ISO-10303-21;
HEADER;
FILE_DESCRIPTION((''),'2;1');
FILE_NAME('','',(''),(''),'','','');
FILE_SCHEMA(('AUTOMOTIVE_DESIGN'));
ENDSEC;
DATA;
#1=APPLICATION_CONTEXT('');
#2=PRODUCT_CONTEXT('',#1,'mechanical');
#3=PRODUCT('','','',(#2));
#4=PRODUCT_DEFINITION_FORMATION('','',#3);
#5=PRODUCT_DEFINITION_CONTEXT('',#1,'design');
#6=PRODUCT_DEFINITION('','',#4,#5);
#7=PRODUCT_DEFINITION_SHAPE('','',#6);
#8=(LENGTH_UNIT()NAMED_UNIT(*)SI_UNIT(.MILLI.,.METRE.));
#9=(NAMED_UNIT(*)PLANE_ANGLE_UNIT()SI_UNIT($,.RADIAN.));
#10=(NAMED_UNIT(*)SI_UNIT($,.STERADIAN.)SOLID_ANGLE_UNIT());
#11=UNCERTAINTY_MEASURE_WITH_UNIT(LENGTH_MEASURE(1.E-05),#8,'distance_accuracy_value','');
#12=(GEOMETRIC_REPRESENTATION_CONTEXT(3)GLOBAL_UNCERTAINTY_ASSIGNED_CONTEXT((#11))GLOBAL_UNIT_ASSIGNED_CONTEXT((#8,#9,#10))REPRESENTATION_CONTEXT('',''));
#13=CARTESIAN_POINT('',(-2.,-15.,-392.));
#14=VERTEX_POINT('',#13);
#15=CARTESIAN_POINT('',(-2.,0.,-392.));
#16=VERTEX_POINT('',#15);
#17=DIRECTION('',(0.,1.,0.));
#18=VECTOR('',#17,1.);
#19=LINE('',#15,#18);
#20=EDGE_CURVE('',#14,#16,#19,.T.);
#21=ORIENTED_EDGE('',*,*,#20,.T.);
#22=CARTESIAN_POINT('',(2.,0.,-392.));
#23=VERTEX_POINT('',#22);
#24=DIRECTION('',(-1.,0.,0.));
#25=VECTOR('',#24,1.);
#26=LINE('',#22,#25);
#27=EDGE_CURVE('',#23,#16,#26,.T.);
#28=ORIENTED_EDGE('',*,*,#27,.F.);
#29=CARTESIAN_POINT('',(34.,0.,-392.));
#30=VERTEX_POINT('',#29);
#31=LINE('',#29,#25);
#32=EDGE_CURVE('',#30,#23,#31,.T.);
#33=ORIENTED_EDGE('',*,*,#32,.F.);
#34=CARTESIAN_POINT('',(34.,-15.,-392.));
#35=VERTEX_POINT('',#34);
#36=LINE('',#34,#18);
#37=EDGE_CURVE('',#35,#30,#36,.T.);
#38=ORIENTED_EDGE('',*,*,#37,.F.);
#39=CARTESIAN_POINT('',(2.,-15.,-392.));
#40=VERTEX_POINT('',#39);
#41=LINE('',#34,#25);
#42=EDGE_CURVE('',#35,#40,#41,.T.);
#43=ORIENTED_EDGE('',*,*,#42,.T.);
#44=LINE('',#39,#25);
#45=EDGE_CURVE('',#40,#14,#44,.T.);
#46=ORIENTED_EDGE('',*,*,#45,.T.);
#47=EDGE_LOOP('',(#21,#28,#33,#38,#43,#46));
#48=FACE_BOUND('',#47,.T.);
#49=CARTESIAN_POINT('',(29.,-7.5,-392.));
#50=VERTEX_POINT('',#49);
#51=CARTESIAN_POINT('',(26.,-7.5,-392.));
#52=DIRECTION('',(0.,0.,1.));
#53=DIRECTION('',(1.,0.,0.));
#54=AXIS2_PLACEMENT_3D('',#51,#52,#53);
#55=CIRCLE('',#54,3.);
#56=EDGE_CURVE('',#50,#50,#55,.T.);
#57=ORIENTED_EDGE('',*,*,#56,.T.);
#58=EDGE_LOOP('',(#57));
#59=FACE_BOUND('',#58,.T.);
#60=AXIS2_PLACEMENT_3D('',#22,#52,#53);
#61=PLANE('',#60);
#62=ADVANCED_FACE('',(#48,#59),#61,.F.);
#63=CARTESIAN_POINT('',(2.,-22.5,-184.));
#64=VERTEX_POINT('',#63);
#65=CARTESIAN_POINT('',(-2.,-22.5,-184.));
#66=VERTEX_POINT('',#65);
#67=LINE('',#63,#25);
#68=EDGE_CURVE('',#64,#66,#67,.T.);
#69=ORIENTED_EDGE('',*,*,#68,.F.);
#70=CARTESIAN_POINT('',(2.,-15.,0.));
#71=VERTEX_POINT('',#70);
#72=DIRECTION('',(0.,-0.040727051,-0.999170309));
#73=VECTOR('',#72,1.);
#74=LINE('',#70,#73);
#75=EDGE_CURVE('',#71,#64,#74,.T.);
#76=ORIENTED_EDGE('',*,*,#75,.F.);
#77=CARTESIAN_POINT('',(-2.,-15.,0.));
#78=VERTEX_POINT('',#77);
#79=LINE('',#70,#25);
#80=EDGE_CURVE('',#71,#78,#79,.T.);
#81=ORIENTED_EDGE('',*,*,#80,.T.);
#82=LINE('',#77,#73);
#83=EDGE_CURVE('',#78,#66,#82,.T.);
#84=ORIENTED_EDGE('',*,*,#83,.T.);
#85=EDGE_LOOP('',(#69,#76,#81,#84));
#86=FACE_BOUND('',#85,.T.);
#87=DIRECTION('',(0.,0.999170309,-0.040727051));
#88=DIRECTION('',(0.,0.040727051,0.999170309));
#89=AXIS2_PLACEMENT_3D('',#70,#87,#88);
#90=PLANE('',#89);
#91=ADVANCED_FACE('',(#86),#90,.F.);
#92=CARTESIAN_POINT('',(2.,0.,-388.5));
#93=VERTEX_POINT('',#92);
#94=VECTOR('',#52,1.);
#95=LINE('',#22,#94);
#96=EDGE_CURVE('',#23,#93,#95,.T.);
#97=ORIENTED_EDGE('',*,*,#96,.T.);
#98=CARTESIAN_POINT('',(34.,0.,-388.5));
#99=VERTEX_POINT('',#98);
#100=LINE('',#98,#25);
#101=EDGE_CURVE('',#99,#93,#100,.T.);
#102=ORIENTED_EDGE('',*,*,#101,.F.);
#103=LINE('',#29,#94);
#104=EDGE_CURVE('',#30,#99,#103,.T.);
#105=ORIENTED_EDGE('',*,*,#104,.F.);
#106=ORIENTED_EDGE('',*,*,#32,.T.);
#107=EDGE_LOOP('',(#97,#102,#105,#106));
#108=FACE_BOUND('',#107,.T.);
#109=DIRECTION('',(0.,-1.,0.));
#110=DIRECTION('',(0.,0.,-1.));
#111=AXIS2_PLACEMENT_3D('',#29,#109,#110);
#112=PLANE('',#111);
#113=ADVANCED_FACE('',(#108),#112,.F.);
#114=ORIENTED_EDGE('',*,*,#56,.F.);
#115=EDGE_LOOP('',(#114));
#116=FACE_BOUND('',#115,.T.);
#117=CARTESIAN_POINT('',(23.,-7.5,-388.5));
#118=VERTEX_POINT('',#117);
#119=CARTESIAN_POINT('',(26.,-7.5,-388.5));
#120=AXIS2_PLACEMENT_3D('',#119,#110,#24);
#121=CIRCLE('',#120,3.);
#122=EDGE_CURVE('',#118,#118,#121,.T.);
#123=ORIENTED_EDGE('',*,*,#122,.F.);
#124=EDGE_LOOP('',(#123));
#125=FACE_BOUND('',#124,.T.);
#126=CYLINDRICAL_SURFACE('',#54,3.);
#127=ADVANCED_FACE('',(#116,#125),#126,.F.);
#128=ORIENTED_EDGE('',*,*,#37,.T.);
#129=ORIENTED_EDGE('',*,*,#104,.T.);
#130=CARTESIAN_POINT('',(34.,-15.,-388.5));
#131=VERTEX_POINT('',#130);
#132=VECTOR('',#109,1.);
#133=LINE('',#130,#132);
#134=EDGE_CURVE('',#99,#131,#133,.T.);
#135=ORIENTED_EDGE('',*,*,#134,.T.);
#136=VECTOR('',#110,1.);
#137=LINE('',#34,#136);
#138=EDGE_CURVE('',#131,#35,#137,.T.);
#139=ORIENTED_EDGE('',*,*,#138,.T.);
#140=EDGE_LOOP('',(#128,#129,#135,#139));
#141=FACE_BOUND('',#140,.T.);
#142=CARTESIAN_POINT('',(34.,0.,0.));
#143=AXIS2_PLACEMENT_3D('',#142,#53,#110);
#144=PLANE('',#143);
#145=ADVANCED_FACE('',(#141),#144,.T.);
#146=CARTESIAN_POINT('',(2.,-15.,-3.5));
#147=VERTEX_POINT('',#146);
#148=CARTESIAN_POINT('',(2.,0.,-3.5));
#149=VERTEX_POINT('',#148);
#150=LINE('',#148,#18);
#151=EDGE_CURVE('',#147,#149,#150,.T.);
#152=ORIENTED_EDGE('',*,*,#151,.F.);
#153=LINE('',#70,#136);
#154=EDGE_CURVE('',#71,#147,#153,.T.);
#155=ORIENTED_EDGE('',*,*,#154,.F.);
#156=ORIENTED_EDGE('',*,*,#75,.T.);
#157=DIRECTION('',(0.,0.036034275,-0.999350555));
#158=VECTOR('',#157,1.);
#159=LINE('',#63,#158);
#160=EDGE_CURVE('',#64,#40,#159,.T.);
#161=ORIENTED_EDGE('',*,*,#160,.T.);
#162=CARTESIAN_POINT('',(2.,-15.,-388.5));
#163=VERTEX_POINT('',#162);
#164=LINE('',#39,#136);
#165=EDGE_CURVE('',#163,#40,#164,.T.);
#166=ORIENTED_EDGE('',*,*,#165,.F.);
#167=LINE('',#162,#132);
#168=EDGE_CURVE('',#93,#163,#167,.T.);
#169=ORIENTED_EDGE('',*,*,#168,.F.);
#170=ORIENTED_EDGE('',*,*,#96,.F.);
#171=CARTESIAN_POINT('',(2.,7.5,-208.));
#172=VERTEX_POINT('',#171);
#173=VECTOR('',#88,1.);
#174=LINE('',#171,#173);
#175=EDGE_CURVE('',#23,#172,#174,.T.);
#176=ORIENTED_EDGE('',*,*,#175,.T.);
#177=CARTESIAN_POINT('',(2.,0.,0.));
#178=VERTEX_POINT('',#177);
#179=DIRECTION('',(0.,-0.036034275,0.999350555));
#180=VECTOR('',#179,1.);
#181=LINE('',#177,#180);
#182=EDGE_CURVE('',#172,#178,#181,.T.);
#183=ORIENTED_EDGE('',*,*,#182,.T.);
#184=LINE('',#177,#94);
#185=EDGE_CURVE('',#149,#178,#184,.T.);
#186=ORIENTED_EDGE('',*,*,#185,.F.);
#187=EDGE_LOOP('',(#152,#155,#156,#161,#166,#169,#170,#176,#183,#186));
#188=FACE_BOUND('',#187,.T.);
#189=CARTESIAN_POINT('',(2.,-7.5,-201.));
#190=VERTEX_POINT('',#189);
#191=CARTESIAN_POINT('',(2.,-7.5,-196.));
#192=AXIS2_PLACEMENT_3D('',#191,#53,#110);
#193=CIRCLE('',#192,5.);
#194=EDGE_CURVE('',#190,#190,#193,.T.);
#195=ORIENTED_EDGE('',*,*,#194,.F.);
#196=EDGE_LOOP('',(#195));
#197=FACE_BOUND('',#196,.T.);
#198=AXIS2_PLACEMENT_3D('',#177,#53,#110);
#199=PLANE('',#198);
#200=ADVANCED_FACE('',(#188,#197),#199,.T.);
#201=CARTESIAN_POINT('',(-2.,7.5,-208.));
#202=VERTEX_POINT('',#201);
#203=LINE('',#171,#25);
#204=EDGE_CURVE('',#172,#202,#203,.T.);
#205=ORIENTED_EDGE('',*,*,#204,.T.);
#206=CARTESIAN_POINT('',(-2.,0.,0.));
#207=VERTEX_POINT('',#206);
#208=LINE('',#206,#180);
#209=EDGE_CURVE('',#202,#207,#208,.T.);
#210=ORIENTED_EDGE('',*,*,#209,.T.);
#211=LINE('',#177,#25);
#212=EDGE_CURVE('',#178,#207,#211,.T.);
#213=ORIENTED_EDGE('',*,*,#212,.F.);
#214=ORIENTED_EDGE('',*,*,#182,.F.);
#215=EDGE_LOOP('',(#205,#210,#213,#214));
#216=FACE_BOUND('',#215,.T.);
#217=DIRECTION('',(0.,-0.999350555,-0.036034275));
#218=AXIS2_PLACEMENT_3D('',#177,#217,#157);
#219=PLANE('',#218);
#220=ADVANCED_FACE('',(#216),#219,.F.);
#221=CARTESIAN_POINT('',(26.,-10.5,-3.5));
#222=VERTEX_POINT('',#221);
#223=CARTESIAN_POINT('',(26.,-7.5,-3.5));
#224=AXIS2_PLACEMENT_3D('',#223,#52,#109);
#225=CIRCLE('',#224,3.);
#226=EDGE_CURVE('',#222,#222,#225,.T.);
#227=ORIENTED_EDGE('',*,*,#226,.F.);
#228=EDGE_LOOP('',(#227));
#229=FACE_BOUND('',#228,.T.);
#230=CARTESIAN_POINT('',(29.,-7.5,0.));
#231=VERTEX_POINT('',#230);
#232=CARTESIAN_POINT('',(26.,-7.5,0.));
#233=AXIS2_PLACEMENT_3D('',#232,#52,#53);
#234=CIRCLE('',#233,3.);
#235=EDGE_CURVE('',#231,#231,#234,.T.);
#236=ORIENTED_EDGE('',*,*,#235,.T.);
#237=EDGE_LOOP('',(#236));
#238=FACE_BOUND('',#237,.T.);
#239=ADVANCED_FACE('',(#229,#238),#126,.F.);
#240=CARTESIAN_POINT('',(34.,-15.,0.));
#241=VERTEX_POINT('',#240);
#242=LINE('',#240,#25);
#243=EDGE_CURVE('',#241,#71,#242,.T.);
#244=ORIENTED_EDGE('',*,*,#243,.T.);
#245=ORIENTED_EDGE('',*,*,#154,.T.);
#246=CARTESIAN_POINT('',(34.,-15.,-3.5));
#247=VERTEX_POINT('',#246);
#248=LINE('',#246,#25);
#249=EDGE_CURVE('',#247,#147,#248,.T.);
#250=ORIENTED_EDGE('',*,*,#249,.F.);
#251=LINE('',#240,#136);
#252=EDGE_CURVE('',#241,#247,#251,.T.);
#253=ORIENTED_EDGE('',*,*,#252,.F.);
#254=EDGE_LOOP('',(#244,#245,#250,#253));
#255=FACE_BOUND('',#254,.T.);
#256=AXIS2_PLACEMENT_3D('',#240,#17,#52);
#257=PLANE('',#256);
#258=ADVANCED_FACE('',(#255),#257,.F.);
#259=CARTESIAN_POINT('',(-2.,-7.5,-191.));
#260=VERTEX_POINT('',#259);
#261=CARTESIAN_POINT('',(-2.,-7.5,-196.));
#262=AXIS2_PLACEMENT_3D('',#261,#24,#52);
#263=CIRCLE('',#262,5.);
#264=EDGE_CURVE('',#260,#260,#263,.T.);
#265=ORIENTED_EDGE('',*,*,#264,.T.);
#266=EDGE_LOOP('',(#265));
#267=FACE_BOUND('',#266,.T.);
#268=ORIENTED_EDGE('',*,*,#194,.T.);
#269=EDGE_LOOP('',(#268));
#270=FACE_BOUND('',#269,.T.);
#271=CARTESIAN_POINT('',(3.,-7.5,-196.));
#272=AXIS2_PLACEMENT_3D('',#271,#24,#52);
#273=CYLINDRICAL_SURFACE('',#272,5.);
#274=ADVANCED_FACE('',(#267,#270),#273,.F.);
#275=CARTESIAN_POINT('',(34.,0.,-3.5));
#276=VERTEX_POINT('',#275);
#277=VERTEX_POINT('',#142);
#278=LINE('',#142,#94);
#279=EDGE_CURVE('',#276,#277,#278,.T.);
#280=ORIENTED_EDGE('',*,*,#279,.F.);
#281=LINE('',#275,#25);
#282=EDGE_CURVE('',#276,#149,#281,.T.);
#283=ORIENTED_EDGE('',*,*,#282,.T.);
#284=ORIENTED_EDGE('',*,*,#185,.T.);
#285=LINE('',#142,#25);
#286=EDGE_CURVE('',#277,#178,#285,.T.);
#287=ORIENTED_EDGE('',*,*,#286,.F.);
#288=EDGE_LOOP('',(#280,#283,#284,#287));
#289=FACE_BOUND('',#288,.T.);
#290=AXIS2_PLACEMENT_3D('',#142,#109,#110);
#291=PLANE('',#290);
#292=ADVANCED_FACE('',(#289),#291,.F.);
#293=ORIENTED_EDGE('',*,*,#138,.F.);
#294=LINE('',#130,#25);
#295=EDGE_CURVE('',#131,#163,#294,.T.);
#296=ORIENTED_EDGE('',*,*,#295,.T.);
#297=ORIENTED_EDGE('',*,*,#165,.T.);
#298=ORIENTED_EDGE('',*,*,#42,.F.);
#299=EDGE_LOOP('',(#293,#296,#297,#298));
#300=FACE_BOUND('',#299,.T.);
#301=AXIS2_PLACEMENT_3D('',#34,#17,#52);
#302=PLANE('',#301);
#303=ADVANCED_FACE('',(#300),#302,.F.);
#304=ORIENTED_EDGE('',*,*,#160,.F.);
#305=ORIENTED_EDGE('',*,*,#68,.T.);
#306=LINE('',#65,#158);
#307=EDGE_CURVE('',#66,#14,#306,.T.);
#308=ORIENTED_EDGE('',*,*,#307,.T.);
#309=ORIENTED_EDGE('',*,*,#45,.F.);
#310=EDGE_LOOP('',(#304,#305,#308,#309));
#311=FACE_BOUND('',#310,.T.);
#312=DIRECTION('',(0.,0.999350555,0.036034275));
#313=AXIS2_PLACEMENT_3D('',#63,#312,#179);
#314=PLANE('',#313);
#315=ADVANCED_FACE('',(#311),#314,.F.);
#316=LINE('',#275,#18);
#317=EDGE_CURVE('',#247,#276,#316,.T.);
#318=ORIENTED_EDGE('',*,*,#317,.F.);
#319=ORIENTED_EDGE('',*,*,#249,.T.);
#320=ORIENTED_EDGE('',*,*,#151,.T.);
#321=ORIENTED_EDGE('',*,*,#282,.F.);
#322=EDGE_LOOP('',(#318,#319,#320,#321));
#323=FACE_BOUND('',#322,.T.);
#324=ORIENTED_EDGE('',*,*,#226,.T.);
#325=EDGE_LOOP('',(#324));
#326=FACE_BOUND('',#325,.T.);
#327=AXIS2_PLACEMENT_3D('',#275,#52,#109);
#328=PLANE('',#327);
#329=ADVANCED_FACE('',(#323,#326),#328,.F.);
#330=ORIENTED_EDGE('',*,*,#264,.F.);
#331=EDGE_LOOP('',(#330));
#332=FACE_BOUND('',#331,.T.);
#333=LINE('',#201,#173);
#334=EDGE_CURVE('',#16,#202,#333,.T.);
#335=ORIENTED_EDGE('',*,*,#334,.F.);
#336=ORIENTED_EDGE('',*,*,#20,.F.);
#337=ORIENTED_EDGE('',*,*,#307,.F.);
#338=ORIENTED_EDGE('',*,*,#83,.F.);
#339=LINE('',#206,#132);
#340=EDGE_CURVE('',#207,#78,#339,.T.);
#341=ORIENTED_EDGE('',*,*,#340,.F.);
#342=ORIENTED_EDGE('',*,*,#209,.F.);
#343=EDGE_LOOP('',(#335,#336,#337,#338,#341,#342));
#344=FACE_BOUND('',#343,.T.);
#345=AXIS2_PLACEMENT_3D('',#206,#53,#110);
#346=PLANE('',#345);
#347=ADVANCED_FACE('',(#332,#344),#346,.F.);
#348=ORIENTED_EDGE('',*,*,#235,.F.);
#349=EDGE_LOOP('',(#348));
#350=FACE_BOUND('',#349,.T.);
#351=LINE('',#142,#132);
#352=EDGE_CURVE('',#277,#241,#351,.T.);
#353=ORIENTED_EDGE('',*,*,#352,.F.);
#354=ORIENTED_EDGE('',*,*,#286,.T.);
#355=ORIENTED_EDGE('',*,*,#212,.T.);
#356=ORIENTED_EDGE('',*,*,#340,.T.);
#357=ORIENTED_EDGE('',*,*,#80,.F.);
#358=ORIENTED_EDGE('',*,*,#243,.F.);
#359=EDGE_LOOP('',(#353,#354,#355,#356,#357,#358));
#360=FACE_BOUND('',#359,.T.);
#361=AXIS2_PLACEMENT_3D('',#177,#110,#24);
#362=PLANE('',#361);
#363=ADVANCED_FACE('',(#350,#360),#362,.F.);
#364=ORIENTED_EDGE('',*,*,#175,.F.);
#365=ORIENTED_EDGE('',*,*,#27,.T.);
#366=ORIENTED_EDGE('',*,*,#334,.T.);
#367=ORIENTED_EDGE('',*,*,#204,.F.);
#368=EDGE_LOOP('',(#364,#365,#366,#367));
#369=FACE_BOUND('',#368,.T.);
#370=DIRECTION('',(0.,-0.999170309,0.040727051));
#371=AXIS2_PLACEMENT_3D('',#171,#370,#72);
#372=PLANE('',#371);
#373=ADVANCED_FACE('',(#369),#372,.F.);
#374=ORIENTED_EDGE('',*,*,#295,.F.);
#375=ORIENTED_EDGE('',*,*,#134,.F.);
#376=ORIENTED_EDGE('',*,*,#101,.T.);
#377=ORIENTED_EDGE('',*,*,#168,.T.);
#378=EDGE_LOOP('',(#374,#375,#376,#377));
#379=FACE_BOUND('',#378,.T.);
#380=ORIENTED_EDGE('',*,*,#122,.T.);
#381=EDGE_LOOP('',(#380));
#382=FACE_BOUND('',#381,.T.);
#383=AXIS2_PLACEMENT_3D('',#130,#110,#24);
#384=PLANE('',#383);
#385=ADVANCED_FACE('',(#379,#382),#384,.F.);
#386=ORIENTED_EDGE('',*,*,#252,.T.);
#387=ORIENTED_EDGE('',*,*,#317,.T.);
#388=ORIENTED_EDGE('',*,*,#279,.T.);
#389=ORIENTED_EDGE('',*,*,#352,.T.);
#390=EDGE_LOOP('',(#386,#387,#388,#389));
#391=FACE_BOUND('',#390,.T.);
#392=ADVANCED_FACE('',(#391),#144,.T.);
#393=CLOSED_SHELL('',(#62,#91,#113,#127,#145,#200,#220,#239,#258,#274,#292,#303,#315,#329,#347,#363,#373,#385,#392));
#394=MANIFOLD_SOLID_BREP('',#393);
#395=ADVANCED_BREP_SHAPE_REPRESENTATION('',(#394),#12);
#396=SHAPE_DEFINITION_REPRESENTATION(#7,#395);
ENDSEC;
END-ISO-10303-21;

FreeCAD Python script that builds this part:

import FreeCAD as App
import Part
import Sketcher
from FreeCAD import Vector
Q = App.Units.Quantity

doc = App.newDocument("Part")
body = doc.addObject("PartDesign::Body", "Body")

# Sketch on YZ plane
sketch1 = body.newObject("Sketcher::SketchObject", "Sketch")
sketch1.AttachmentSupport = (doc.getObject("YZ_Plane"), [""])
sketch1.MapMode = "FlatFace"
sketch1.addGeometry([
    Part.LineSegment(Vector(8, -208, 0), Vector(0, 0, 0)),  # 0
    Part.LineSegment(Vector(0, 0, 0), Vector(-15, 0, 0)),  # 1
    Part.LineSegment(Vector(-15, 0, 0), Vector(-22, -184, 0)),  # 2
    Part.LineSegment(Vector(-22, -184, 0), Vector(-15, -392, 0)),  # 3
    Part.LineSegment(Vector(-15, -392, 0), Vector(0, -392, 0)),  # 4
    Part.LineSegment(Vector(0, -392, 0), Vector(8, -208, 0)),  # 5
], False)
sketch1.addConstraint([
    Sketcher.Constraint("Coincident", 0, 2, 1, 1),
    Sketcher.Constraint("Coincident", 1, 2, 2, 1),
    Sketcher.Constraint("Coincident", 2, 2, 3, 1),
    Sketcher.Constraint("Coincident", 3, 2, 4, 1),
    Sketcher.Constraint("Coincident", 4, 2, 5, 1),
    Sketcher.Constraint("Coincident", 5, 2, 0, 1),
    Sketcher.Constraint("Horizontal", 1),
    Sketcher.Constraint("Horizontal", 4),
    Sketcher.Constraint("Coincident", 0, 2, -1, 1),
    Sketcher.Constraint("PointOnObject", 4, 2, -2),
    Sketcher.Constraint("Parallel", 0, 3),
    Sketcher.Constraint("Parallel", 2, 5),
    Sketcher.Constraint("Vertical", 1, 2, 3, 2),
    Sketcher.Constraint("DistanceX", 1, 2, 1, 1, Q("15 mm")),
    Sketcher.Constraint("DistanceY", 2, 2, -1, 1, Q("184 mm")),
    Sketcher.Constraint("DistanceY", 3, 2, -1, 1, Q("392 mm")),
    Sketcher.Constraint("DistanceX", 2, 2, 5, 2, Q("30 mm")),
])
pad1 = body.newObject("PartDesign::Pad", "Pad")
pad1.Profile = sketch1
pad1.Length = 4
pad1.Midplane = True

# Sketch on YZ plane
sketch2 = body.newObject("Sketcher::SketchObject", "Sketch001")
sketch2.AttachmentSupport = (doc.getObject("YZ_Plane"), [""])
sketch2.MapMode = "FlatFace"
sketch2.AttachmentOffset = App.Placement(Vector(0, 0, 2), App.Rotation())
sketch2.addGeometry([
    Part.LineSegment(Vector(0, 0, 0), Vector(-15, 0, 0)),  # 0
    Part.LineSegment(Vector(-15, 0, 0), Vector(-15, -3.5, 0)),  # 1
    Part.LineSegment(Vector(-15, -3.5, 0), Vector(0, -3.5, 0)),  # 2
    Part.LineSegment(Vector(0, -3.5, 0), Vector(0, 0, 0)),  # 3
    Part.LineSegment(Vector(0, -388.5, 0), Vector(-15, -388.5, 0)),  # 4
    Part.LineSegment(Vector(-15, -388.5, 0), Vector(-15, -392, 0)),  # 5
    Part.LineSegment(Vector(-15, -392, 0), Vector(0, -392, 0)),  # 6
    Part.LineSegment(Vector(0, -392, 0), Vector(0, -388.5, 0)),  # 7
], False)
sketch2.addConstraint([
    Sketcher.Constraint("Coincident", 0, 2, 1, 1),
    Sketcher.Constraint("Coincident", 1, 2, 2, 1),
    Sketcher.Constraint("Coincident", 2, 2, 3, 1),
    Sketcher.Constraint("Coincident", 3, 2, 0, 1),
    Sketcher.Constraint("Coincident", 4, 2, 5, 1),
    Sketcher.Constraint("Coincident", 5, 2, 6, 1),
    Sketcher.Constraint("Coincident", 6, 2, 7, 1),
    Sketcher.Constraint("Coincident", 7, 2, 4, 1),
    Sketcher.Constraint("Horizontal", 0),
    Sketcher.Constraint("Vertical", 1),
    Sketcher.Constraint("Horizontal", 2),
    Sketcher.Constraint("Vertical", 3),
    Sketcher.Constraint("Horizontal", 4),
    Sketcher.Constraint("Vertical", 5),
    Sketcher.Constraint("Horizontal", 6),
    Sketcher.Constraint("Vertical", 7),
    Sketcher.Constraint("Coincident", 3, 2, -1, 1),
    Sketcher.Constraint("PointOnObject", 6, 2, -2),
    Sketcher.Constraint("Vertical", 1, 2, 4, 2),
    Sketcher.Constraint("Equal", 3, 5),
    Sketcher.Constraint("DistanceX", 0, 2, 0, 1, Q("15 mm")),
    Sketcher.Constraint("DistanceY", 1, 2, 1, 1, Q("3.5 mm")),
    Sketcher.Constraint("DistanceY", 5, 2, -1, 1, Q("392 mm")),
])
pad2 = body.newObject("PartDesign::Pad", "Pad001")
pad2.Profile = sketch2
pad2.Length = 32

# Sketch on XY plane
sketch3 = body.newObject("Sketcher::SketchObject", "Sketch002")
sketch3.AttachmentSupport = (doc.getObject("XY_Plane"), [""])
sketch3.MapMode = "FlatFace"
sketch3.addGeometry(Part.Circle(Vector(26, -7.5, 0), Vector(0, 0, 1), 3), False)
sketch3.addConstraint([
    Sketcher.Constraint("Diameter", 0, Q("6 mm")),
    Sketcher.Constraint("DistanceX", -1, 1, 0, 3, Q("26 mm")),
    Sketcher.Constraint("DistanceY", 0, 3, -1, 1, Q("7.5 mm")),
])
pocket1 = body.newObject("PartDesign::Pocket", "Pocket")
pocket1.Profile = sketch3
pocket1.Length = 392

# Sketch on YZ plane
sketch4 = body.newObject("Sketcher::SketchObject", "Sketch003")
sketch4.AttachmentSupport = (doc.getObject("YZ_Plane"), [""])
sketch4.MapMode = "FlatFace"
sketch4.AttachmentOffset = App.Placement(Vector(0, 0, -2), App.Rotation())
sketch4.addGeometry(Part.Circle(Vector(-8, -196, 0), Vector(0, 0, 1), 5), False)
sketch4.addConstraint([
    Sketcher.Constraint("Diameter", 0, Q("10 mm")),
    Sketcher.Constraint("DistanceY", 0, 3, -1, 1, Q("196 mm")),
    Sketcher.Constraint("DistanceX", 0, 3, -1, 1, Q("7.5 mm")),
])
pocket2 = body.newObject("PartDesign::Pocket", "Pocket001")
pocket2.Profile = sketch4
pocket2.Length = 5
pocket2.Reversed = True

doc.recompute()
